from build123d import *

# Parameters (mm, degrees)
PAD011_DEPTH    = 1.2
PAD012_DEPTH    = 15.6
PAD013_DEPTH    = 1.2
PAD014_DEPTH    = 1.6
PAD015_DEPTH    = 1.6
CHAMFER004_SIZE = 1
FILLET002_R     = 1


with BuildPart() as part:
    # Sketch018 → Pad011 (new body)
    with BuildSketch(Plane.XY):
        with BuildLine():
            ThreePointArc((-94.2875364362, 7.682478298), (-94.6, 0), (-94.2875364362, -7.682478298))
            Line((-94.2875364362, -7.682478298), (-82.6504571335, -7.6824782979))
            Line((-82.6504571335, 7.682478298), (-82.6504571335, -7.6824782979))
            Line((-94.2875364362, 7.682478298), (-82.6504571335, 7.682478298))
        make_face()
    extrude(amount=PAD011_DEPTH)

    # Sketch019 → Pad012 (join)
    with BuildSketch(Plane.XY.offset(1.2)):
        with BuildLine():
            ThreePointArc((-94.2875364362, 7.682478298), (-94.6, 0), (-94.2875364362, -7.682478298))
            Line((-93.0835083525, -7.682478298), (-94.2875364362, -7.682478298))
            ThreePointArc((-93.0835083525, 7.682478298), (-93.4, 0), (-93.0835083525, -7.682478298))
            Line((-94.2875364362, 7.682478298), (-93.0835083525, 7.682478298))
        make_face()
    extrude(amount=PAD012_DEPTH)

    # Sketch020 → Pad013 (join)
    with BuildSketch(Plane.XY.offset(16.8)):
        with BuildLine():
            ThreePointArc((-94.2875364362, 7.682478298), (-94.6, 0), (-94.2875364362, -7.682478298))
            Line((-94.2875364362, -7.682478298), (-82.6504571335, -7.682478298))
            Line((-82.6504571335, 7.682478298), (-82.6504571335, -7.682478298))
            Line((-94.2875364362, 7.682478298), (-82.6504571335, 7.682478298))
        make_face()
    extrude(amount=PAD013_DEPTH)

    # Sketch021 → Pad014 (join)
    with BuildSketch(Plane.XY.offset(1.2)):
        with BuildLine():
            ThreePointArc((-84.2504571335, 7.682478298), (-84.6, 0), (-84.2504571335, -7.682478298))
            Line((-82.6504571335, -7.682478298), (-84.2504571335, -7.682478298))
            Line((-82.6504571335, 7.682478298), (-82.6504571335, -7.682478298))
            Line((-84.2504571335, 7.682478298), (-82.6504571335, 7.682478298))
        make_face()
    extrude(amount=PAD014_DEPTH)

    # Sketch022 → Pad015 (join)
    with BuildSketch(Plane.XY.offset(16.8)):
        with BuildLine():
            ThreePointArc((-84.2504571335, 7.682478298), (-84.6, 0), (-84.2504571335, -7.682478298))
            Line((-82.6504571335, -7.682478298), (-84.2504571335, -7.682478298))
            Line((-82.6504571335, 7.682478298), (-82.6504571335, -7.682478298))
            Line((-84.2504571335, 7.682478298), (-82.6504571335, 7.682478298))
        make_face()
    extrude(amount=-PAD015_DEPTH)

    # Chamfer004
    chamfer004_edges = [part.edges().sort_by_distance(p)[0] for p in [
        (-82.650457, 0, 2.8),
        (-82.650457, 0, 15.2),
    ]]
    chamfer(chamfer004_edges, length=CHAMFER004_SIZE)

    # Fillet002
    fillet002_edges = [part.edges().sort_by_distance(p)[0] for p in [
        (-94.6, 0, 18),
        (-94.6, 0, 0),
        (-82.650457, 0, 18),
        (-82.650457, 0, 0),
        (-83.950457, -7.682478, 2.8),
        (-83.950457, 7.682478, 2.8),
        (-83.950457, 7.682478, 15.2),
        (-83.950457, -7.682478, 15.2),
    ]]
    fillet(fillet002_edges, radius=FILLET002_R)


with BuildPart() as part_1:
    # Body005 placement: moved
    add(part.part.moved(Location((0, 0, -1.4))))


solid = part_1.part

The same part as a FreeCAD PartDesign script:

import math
import FreeCAD as App
import Part
import Sketcher

V = App.Vector


def edges_at(feature, points):
    """Names of the edges that pass closest to the given points."""
    edges = feature.Shape.Edges
    near = lambda p: min(range(len(edges)), key=lambda i: edges[i].distToShape(Part.Vertex(*p))[0])
    return sorted({f"Edge{near(p) + 1}" for p in points})

doc = App.newDocument("Part")
body = doc.addObject("PartDesign::Body", "Body")

# Sketch on XY plane
sketch1 = body.newObject("Sketcher::SketchObject", "Sketch")
sketch1.AttachmentSupport = (doc.getObject("XY_Plane"), [""])
sketch1.MapMode = "FlatFace"
sketch1.addGeometry(Part.ArcOfCircle(Part.Circle(V(0, 0, 0), V(0, 0, 1), 94.6), math.radians(175.341873), math.radians(184.658127)), False)
sketch1.addGeometry(Part.LineSegment(V(-94.287536, -7.682478, 0), V(-82.650457, -7.682478, 0)), False)
sketch1.addGeometry(Part.LineSegment(V(-82.650457, -7.682478, 0), V(-82.650457, 7.682478, 0)), False)
sketch1.addGeometry(Part.LineSegment(V(-82.650457, 7.682478, 0), V(-94.287536, 7.682478, 0)), False)
sketch1.addConstraint(Sketcher.Constraint("Coincident", 0, 2, 1, 1))
sketch1.addConstraint(Sketcher.Constraint("Coincident", 1, 2, 2, 1))
sketch1.addConstraint(Sketcher.Constraint("Coincident", 2, 2, 3, 1))
sketch1.addConstraint(Sketcher.Constraint("Coincident", 3, 2, 0, 1))
sketch1.addConstraint(Sketcher.Constraint("Horizontal", 1))
sketch1.addConstraint(Sketcher.Constraint("Vertical", 2))
sketch1.addConstraint(Sketcher.Constraint("Horizontal", 3))
sketch1.addConstraint(Sketcher.Constraint("Coincident", 0, 3, -1, 1))
sketch1.addConstraint(Sketcher.Constraint("Vertical", 0, 2, 3, 2))
sketch1.addConstraint(Sketcher.Constraint("Radius", 0, 94.6))
sketch1.addConstraint(Sketcher.Constraint("DistanceX", 1, 1, 1, 2, 11.637079))
sketch1.addConstraint(Sketcher.Constraint("DistanceY", 2, 1, 2, 2, 15.364957))
pad1 = body.newObject("PartDesign::Pad", "Pad")
pad1.Profile = sketch1
pad1.Length = 1.2

# Sketch on XY plane
sketch2 = body.newObject("Sketcher::SketchObject", "Sketch001")
sketch2.AttachmentSupport = (doc.getObject("XY_Plane"), [""])
sketch2.MapMode = "FlatFace"
sketch2.AttachmentOffset = App.Placement(V(0, 0, 1.2), App.Rotation())
sketch2.addGeometry(Part.ArcOfCircle(Part.Circle(V(0, 0, 0), V(0, 0, 1), 94.6), math.radians(175.341873), math.radians(184.658127)), False)
sketch2.addGeometry(Part.LineSegment(V(-94.287536, -7.682478, 0), V(-93.083508, -7.682478, 0)), False)
sketch2.addGeometry(Part.ArcOfCircle(Part.Circle(V(0, 0, 0), V(0, 0, 1), 93.4), math.radians(175.28189), math.radians(184.71811)), False)
sketch2.addGeometry(Part.LineSegment(V(-93.083508, 7.682478, 0), V(-94.287536, 7.682478, 0)), False)
sketch2.addConstraint(Sketcher.Constraint("Coincident", 0, 2, 1, 1))
sketch2.addConstraint(Sketcher.Constraint("Coincident", 1, 2, 2, 2))
sketch2.addConstraint(Sketcher.Constraint("Coincident", 2, 1, 3, 1))
sketch2.addConstraint(Sketcher.Constraint("Coincident", 3, 2, 0, 1))
sketch2.addConstraint(Sketcher.Constraint("Horizontal", 1))
sketch2.addConstraint(Sketcher.Constraint("Horizontal", 3))
sketch2.addConstraint(Sketcher.Constraint("Coincident", 0, 3, -1, 1))
sketch2.addConstraint(Sketcher.Constraint("Coincident", 2, 3, -1, 1))
sketch2.addConstraint(Sketcher.Constraint("Vertical", 1, 2, 2, 1))
sketch2.addConstraint(Sketcher.Constraint("Radius", 0, 94.6))
sketch2.addConstraint(Sketcher.Constraint("Radius", 2, 93.4))
sketch2.addConstraint(Sketcher.Constraint("DistanceY", 0, 2, -1, 1, 7.682478))
pad2 = body.newObject("PartDesign::Pad", "Pad001")
pad2.Profile = sketch2
pad2.Length = 15.6

# Sketch on XY plane
sketch3 = body.newObject("Sketcher::SketchObject", "Sketch002")
sketch3.AttachmentSupport = (doc.getObject("XY_Plane"), [""])
sketch3.MapMode = "FlatFace"
sketch3.AttachmentOffset = App.Placement(V(0, 0, 16.8), App.Rotation())
sketch3.addGeometry(Part.ArcOfCircle(Part.Circle(V(0, 0, 0), V(0, 0, 1), 94.6), math.radians(175.341873), math.radians(184.658127)), False)
sketch3.addGeometry(Part.LineSegment(V(-94.287536, -7.682478, 0), V(-82.650457, -7.682478, 0)), False)
sketch3.addGeometry(Part.LineSegment(V(-82.650457, -7.682478, 0), V(-82.650457, 7.682478, 0)), False)
sketch3.addGeometry(Part.LineSegment(V(-82.650457, 7.682478, 0), V(-94.287536, 7.682478, 0)), False)
sketch3.addConstraint(Sketcher.Constraint("Coincident", 0, 2, 1, 1))
sketch3.addConstraint(Sketcher.Constraint("Coincident", 1, 2, 2, 1))
sketch3.addConstraint(Sketcher.Constraint("Coincident", 2, 2, 3, 1))
sketch3.addConstraint(Sketcher.Constraint("Coincident", 3, 2, 0, 1))
sketch3.addConstraint(Sketcher.Constraint("Horizontal", 1))
sketch3.addConstraint(Sketcher.Constraint("Vertical", 2))
sketch3.addConstraint(Sketcher.Constraint("Horizontal", 3))
sketch3.addConstraint(Sketcher.Constraint("Coincident", 0, 3, -1, 1))
sketch3.addConstraint(Sketcher.Constraint("Vertical", 0, 2, 3, 2))
sketch3.addConstraint(Sketcher.Constraint("Radius", 0, 94.6))
sketch3.addConstraint(Sketcher.Constraint("DistanceX", 1, 1, 1, 2, 11.637079))
sketch3.addConstraint(Sketcher.Constraint("DistanceY", 2, 1, 2, 2, 15.364957))
pad3 = body.newObject("PartDesign::Pad", "Pad002")
pad3.Profile = sketch3
pad3.Length = 1.2

# Sketch on XY plane
sketch4 = body.newObject("Sketcher::SketchObject", "Sketch003")
sketch4.AttachmentSupport = (doc.getObject("XY_Plane"), [""])
sketch4.MapMode = "FlatFace"
sketch4.AttachmentOffset = App.Placement(V(0, 0, 1.2), App.Rotation())
sketch4.addGeometry(Part.ArcOfCircle(Part.Circle(V(0, 0, 0), V(0, 0, 1), 84.6), math.radians(174.789825), math.radians(185.210175)), False)
sketch4.addGeometry(Part.LineSegment(V(-84.250457, -7.682478, 0), V(-82.650457, -7.682478, 0)), False)
sketch4.addGeometry(Part.LineSegment(V(-82.650457, -7.682478, 0), V(-82.650457, 7.682478, 0)), False)
sketch4.addGeometry(Part.LineSegment(V(-82.650457, 7.682478, 0), V(-84.250457, 7.682478, 0)), False)
sketch4.addConstraint(Sketcher.Constraint("Coincident", 0, 2, 1, 1))
sketch4.addConstraint(Sketcher.Constraint("Coincident", 1, 2, 2, 1))
sketch4.addConstraint(Sketcher.Constraint("Coincident", 2, 2, 3, 1))
sketch4.addConstraint(Sketcher.Constraint("Coincident", 3, 2, 0, 1))
sketch4.addConstraint(Sketcher.Constraint("Horizontal", 1))
sketch4.addConstraint(Sketcher.Constraint("Vertical", 2))
sketch4.addConstraint(Sketcher.Constraint("Horizontal", 3))
sketch4.addConstraint(Sketcher.Constraint("Coincident", 0, 3, -1, 1))
sketch4.addConstraint(Sketcher.Constraint("Vertical", 0, 2, 3, 2))
sketch4.addConstraint(Sketcher.Constraint("Radius", 0, 84.6))
sketch4.addConstraint(Sketcher.Constraint("DistanceX", 1, 1, 1, 2, 1.6))
sketch4.addConstraint(Sketcher.Constraint("DistanceY", 2, 1, 2, 2, 15.364957))
pad4 = body.newObject("PartDesign::Pad", "Pad003")
pad4.Profile = sketch4
pad4.Length = 1.6

# Sketch on XY plane
sketch5 = body.newObject("Sketcher::SketchObject", "Sketch004")
sketch5.AttachmentSupport = (doc.getObject("XY_Plane"), [""])
sketch5.MapMode = "FlatFace"
sketch5.AttachmentOffset = App.Placement(V(0, 0, 16.8), App.Rotation())
sketch5.addGeometry(Part.ArcOfCircle(Part.Circle(V(0, 0, 0), V(0, 0, 1), 84.6), math.radians(174.789825), math.radians(185.210175)), False)
sketch5.addGeometry(Part.LineSegment(V(-84.250457, -7.682478, 0), V(-82.650457, -7.682478, 0)), False)
sketch5.addGeometry(Part.LineSegment(V(-82.650457, -7.682478, 0), V(-82.650457, 7.682478, 0)), False)
sketch5.addGeometry(Part.LineSegment(V(-82.650457, 7.682478, 0), V(-84.250457, 7.682478, 0)), False)
sketch5.addConstraint(Sketcher.Constraint("Coincident", 0, 2, 1, 1))
sketch5.addConstraint(Sketcher.Constraint("Coincident", 1, 2, 2, 1))
sketch5.addConstraint(Sketcher.Constraint("Coincident", 2, 2, 3, 1))
sketch5.addConstraint(Sketcher.Constraint("Coincident", 3, 2, 0, 1))
sketch5.addConstraint(Sketcher.Constraint("Horizontal", 1))
sketch5.addConstraint(Sketcher.Constraint("Vertical", 2))
sketch5.addConstraint(Sketcher.Constraint("Horizontal", 3))
sketch5.addConstraint(Sketcher.Constraint("Coincident", 0, 3, -1, 1))
sketch5.addConstraint(Sketcher.Constraint("Vertical", 0, 2, 3, 2))
sketch5.addConstraint(Sketcher.Constraint("Radius", 0, 84.6))
sketch5.addConstraint(Sketcher.Constraint("DistanceX", 1, 1, 1, 2, 1.6))
sketch5.addConstraint(Sketcher.Constraint("DistanceY", 2, 1, 2, 2, 15.364957))
pad5 = body.newObject("PartDesign::Pad", "Pad004")
pad5.Profile = sketch5
pad5.Length = 1.6
pad5.Reversed = True
doc.recompute()

chamfer = body.newObject("PartDesign::Chamfer", "Chamfer")
chamfer.Base = (pad5, edges_at(pad5, [(-82.65, 0, 2.8), (-82.65, 0, 15.2)]))
chamfer.Size = 1
doc.recompute()

fillet = body.newObject("PartDesign::Fillet", "Fillet")
fillet.Base = (chamfer, edges_at(chamfer, [
    (-94.6, 0, 18),
    (-94.6, 0, 0),
    (-82.65, 0, 18),
    (-82.65, 0, 0),
    (-83.95, -7.682, 2.8),
    (-83.95, 7.682, 2.8),
    (-83.95, 7.682, 15.2),
    (-83.95, -7.682, 15.2),
]))
fillet.Radius = 1
body2 = doc.addObject("PartDesign::Body", "Body001")
doc.recompute()

body.Placement = App.Placement(V(0, 0, -1.4), App.Rotation(V(0, 0, 1), 0))
boolean = body2.newObject("PartDesign::Boolean", "Boolean")
boolean.Type = "Fuse"
boolean.addObjects([body])

doc.recompute()
